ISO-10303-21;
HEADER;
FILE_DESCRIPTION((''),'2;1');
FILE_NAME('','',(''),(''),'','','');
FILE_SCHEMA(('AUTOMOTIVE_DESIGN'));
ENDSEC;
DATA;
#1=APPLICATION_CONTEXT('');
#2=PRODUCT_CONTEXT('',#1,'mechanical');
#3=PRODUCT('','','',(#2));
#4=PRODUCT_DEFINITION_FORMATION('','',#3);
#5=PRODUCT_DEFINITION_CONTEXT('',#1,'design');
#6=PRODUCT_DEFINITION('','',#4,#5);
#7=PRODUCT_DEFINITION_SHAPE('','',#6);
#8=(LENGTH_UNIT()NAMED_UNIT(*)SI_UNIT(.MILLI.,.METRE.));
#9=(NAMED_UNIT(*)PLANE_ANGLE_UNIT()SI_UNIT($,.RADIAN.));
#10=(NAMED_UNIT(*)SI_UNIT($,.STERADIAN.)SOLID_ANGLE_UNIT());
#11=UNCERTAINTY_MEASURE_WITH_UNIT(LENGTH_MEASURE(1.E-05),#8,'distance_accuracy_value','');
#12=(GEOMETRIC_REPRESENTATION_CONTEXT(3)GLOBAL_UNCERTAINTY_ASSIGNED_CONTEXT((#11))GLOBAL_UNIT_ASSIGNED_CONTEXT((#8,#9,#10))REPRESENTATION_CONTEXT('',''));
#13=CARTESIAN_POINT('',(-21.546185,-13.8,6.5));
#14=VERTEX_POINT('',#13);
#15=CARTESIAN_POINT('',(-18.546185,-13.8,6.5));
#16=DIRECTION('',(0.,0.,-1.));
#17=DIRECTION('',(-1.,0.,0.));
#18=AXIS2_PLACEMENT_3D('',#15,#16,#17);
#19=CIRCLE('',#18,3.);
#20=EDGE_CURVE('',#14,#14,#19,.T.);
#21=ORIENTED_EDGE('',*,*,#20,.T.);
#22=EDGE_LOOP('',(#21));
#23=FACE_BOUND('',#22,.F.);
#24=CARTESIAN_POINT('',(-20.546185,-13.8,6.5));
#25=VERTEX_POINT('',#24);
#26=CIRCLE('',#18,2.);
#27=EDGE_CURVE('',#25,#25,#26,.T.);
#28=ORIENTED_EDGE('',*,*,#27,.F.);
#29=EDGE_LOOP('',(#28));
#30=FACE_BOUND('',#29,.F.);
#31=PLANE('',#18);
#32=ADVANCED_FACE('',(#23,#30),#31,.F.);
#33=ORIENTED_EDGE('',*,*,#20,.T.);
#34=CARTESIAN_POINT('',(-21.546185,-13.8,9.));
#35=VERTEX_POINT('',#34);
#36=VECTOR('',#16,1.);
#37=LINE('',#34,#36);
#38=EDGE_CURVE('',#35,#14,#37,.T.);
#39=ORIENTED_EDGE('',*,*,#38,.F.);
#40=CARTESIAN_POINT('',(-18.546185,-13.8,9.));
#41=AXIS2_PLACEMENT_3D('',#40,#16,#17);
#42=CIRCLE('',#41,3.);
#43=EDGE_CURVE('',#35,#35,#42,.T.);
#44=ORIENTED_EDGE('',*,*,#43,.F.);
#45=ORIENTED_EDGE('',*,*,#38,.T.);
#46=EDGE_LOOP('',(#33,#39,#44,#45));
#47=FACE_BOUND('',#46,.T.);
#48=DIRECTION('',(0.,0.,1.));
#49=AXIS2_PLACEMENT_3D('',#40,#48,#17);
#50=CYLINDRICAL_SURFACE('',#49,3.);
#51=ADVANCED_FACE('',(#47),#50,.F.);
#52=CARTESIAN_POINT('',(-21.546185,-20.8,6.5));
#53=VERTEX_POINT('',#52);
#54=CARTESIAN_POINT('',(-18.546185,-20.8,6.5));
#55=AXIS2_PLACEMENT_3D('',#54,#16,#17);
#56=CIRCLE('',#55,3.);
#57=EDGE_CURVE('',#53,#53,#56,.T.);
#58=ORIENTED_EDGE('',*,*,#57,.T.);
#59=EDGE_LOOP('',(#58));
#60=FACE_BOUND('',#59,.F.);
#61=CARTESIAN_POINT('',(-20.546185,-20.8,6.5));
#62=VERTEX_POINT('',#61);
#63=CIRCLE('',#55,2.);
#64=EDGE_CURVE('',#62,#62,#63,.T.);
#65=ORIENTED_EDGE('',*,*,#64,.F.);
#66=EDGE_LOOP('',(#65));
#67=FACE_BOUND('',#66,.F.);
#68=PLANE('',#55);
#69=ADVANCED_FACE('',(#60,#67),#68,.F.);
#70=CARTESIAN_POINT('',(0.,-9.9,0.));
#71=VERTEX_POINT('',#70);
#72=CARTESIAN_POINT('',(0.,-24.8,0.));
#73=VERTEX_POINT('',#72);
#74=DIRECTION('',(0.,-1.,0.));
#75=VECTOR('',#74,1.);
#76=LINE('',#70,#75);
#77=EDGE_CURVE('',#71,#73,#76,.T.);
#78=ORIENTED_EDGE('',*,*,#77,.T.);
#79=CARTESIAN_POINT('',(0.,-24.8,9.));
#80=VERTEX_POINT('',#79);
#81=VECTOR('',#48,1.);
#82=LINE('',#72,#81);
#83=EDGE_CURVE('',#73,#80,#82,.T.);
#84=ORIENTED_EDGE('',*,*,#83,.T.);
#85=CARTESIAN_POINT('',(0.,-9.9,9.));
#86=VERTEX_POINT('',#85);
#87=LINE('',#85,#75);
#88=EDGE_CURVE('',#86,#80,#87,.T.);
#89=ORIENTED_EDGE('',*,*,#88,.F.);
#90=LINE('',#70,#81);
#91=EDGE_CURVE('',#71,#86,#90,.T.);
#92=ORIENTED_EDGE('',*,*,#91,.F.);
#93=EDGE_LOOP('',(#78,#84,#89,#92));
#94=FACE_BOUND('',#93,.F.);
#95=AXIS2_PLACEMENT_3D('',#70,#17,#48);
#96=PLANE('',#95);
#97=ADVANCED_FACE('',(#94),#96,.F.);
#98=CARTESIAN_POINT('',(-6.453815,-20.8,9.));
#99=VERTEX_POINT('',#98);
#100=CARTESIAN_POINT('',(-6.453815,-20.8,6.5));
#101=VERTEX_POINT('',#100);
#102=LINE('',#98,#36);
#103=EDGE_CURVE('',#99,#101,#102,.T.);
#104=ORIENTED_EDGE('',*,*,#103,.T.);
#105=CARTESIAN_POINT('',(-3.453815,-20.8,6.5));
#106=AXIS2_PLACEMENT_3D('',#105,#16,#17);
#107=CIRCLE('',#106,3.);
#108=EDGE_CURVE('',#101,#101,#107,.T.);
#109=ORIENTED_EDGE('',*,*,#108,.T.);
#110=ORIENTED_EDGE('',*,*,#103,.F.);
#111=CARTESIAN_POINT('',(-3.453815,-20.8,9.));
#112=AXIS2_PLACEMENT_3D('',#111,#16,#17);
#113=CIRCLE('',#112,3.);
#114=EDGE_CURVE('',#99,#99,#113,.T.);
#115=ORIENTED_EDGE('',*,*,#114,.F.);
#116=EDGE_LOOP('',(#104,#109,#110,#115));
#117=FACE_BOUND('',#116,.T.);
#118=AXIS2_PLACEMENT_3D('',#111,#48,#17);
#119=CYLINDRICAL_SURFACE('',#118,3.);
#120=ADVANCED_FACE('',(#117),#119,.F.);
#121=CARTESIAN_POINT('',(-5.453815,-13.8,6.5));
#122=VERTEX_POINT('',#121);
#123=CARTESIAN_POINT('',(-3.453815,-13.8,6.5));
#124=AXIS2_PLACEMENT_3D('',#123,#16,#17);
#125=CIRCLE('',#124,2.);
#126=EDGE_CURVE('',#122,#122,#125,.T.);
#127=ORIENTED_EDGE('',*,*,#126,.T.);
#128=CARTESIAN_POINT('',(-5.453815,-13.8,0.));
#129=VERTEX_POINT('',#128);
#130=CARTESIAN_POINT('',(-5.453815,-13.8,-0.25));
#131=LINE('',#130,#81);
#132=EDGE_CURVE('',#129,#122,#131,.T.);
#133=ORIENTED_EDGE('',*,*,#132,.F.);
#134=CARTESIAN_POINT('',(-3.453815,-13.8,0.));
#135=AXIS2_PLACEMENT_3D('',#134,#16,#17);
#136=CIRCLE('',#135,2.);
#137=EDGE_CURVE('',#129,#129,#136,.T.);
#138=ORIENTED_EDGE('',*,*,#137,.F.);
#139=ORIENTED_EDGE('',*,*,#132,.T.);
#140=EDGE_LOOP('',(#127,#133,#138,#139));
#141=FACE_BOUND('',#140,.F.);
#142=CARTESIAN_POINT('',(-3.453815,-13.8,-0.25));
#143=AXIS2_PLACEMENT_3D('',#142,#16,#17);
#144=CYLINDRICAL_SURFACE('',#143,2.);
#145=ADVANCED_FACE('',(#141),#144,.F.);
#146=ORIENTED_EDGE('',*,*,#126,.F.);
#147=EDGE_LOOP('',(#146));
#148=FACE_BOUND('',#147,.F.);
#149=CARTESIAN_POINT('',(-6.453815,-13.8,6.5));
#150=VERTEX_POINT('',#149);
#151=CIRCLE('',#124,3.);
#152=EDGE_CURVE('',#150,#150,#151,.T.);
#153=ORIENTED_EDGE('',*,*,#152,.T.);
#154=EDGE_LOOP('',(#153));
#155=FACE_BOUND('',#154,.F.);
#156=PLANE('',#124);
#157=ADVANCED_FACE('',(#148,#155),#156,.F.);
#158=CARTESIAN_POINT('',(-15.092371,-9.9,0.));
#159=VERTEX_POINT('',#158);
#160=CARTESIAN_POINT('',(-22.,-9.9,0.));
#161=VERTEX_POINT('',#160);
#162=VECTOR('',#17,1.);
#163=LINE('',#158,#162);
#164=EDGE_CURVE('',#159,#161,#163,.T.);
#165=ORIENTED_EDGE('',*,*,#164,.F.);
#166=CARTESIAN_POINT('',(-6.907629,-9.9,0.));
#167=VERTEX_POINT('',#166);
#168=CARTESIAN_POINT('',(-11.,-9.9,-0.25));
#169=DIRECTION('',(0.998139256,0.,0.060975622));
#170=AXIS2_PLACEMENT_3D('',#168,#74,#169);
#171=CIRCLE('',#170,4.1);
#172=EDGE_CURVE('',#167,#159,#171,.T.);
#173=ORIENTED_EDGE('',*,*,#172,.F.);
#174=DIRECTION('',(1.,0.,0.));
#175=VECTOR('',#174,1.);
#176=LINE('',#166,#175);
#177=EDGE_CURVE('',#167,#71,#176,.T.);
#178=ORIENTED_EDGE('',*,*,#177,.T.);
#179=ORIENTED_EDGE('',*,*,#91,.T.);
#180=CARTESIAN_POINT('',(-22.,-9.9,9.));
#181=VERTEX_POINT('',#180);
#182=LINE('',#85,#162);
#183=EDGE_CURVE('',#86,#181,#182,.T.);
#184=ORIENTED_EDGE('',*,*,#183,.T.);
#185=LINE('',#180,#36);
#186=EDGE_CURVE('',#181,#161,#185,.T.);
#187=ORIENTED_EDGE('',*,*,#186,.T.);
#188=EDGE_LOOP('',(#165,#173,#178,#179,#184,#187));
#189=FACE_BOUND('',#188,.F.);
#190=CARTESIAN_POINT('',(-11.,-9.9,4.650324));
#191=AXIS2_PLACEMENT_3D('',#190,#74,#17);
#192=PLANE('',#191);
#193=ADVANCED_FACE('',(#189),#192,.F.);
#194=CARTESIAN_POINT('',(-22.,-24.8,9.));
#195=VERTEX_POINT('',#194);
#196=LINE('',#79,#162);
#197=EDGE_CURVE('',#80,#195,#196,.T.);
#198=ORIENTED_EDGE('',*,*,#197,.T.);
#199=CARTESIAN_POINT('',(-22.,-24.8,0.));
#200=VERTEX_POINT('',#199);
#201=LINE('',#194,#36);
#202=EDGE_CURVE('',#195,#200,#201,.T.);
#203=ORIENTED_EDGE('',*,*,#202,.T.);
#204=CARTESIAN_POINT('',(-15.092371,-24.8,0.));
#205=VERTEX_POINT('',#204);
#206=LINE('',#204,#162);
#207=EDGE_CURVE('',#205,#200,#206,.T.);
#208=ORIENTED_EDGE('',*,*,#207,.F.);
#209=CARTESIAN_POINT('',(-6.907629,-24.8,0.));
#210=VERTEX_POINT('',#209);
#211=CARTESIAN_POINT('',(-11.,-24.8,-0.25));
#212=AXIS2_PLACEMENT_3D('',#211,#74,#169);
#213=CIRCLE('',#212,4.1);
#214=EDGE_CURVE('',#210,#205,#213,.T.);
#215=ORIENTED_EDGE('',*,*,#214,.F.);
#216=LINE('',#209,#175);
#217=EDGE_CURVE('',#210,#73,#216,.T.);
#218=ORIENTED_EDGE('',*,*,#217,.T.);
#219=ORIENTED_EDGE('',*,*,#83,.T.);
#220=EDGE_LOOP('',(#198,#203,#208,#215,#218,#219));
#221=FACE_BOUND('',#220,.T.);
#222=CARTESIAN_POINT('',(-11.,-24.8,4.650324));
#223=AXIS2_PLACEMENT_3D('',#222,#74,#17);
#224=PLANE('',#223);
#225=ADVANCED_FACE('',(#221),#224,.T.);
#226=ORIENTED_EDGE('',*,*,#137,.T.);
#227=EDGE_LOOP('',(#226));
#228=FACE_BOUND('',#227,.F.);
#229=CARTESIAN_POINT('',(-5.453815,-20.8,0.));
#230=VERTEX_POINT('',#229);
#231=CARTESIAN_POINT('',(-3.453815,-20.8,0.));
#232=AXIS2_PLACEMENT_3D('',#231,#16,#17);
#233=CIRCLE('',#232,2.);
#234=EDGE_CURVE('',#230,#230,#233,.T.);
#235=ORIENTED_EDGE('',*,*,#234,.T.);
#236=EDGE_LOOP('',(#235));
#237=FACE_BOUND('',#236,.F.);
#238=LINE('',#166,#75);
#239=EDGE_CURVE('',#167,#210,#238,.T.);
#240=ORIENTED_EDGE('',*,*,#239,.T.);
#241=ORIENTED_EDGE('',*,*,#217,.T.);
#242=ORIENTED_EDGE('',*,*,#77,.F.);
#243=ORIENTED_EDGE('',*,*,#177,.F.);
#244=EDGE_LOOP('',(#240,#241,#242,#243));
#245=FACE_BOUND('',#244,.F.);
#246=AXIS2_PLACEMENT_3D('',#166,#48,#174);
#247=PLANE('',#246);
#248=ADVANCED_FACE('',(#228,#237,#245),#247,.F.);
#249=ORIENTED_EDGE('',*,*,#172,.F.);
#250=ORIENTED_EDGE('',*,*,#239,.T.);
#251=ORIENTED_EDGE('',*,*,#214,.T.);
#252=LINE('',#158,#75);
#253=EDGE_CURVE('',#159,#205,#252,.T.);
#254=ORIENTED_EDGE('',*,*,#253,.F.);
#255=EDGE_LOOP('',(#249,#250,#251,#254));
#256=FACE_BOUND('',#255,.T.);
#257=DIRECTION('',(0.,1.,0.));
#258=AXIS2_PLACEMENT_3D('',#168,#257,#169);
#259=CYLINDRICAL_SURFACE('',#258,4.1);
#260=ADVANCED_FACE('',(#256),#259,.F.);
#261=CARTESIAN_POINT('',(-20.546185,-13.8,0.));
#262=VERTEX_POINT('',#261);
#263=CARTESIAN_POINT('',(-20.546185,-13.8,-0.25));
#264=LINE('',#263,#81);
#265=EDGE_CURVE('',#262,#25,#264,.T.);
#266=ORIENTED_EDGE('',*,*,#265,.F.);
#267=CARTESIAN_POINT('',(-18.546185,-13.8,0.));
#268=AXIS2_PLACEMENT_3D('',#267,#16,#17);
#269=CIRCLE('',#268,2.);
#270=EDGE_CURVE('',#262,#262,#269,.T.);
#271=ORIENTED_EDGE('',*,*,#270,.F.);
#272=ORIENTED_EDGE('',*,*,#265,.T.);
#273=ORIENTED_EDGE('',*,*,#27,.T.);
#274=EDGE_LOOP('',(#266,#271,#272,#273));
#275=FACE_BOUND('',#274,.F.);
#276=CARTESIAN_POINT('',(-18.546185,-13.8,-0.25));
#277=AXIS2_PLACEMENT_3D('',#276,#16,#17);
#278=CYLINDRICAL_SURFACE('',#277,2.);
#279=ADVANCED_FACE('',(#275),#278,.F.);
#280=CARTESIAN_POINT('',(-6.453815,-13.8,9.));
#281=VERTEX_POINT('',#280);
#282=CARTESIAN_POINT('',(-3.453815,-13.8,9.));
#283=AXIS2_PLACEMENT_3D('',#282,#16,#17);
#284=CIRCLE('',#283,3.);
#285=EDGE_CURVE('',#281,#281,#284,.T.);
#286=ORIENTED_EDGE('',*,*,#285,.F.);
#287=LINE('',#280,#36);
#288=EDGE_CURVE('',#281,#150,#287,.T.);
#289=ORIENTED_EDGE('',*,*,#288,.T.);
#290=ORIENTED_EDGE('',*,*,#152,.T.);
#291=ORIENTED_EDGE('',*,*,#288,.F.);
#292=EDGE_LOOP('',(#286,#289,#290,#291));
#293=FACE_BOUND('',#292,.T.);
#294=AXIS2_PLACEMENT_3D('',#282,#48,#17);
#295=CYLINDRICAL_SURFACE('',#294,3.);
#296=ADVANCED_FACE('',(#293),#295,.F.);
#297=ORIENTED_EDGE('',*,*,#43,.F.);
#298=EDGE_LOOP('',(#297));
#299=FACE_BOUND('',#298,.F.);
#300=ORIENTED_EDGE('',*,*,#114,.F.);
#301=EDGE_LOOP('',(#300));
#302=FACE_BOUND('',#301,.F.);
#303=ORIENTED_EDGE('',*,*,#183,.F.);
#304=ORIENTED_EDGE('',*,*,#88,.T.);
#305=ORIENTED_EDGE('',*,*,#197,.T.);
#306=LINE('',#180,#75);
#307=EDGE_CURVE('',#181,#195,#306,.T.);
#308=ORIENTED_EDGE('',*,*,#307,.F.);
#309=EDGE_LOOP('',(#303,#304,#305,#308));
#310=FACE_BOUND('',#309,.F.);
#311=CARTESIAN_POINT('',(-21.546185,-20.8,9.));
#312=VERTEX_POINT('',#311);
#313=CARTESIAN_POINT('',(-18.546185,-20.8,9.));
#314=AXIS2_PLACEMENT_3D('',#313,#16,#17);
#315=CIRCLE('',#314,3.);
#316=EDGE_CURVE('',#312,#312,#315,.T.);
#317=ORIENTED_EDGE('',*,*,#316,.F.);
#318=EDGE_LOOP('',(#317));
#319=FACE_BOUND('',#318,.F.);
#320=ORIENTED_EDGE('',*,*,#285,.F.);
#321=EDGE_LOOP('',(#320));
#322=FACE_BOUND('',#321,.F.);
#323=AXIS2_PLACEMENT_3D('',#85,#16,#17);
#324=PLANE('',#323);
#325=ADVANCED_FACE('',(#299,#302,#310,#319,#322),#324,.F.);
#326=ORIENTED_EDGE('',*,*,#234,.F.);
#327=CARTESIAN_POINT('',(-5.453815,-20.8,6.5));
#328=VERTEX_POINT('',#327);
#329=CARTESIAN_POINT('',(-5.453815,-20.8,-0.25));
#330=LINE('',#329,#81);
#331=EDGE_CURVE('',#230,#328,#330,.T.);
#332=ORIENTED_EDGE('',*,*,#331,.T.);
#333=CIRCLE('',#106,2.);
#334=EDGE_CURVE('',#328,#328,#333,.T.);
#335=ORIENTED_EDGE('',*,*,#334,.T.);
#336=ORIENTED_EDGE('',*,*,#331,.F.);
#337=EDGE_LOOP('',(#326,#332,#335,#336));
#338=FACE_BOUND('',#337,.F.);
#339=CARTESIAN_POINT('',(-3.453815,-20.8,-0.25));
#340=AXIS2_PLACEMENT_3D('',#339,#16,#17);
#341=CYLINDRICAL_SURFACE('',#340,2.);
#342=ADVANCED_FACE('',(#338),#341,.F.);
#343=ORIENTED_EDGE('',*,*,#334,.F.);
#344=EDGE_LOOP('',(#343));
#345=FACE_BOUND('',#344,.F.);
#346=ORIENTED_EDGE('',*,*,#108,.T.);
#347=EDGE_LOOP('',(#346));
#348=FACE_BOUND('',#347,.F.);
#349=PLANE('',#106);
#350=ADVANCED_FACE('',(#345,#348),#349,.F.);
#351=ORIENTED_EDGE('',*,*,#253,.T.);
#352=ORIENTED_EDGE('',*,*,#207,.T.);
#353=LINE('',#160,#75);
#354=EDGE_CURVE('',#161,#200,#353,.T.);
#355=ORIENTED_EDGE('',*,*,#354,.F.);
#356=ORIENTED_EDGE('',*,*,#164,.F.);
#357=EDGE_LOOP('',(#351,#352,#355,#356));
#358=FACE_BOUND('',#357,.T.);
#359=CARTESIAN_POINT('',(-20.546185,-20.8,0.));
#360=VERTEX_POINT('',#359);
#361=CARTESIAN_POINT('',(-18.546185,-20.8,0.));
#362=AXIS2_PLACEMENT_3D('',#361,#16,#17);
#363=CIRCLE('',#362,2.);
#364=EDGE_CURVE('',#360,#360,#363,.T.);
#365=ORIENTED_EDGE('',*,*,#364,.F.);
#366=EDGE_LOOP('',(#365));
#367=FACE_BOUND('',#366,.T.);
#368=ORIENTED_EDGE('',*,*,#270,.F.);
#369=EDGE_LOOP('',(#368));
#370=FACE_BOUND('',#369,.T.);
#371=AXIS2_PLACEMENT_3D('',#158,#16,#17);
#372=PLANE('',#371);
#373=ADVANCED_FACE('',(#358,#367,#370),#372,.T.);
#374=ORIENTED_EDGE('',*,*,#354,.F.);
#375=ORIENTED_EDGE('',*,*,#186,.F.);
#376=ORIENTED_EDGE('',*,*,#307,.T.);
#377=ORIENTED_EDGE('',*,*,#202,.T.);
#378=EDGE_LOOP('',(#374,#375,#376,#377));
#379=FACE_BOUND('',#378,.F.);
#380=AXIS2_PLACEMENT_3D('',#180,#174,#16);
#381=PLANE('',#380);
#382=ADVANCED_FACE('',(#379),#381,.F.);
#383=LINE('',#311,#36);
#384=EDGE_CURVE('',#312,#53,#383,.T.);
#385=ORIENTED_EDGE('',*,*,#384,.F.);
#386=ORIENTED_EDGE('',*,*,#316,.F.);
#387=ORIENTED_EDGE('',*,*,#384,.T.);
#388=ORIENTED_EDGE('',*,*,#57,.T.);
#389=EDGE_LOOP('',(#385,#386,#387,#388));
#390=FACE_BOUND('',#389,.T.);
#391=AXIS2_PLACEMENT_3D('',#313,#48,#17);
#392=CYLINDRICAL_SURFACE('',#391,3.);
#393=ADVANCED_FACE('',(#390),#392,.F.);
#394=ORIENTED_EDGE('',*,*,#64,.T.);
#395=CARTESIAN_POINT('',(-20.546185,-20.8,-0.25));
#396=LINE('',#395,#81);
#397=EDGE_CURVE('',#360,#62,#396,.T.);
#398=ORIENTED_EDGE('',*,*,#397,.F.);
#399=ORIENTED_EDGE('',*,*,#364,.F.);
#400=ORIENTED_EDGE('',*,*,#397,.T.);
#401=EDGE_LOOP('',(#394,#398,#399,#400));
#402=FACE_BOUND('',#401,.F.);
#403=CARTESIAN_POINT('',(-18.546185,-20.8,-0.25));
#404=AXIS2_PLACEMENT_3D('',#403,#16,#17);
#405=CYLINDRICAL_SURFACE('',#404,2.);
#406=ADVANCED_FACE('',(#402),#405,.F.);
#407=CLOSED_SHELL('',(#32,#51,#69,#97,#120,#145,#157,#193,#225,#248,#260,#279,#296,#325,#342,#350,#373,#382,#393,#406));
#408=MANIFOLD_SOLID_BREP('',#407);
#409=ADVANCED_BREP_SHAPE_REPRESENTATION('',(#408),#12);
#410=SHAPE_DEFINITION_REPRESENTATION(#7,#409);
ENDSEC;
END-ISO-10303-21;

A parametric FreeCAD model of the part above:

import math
import FreeCAD as App
import Part
import Sketcher
from FreeCAD import Vector

doc = App.newDocument("Part")
body = doc.addObject("PartDesign::Body", "Body")

sketch1 = body.newObject("Sketcher::SketchObject", "Sketch")
sketch1.AttachmentSupport = (doc.getObject("XZ_Plane"), [""])
sketch1.MapMode = "FlatFace"
sketch1.AttachmentOffset = App.Placement(Vector(0, 0, 9.9), App.Rotation())
sketch1.addGeometry(Part.LineSegment(Vector(-22, -0.2, 0), Vector(-22, -9.2, 0)), False)
sketch1.addGeometry(Part.LineSegment(Vector(-22, -9.2, 0), Vector(0, -9.2, 0)), False)
sketch1.addGeometry(Part.LineSegment(Vector(0, -9.2, 0), Vector(0, -0.2, 0)), False)
sketch1.addGeometry(Part.LineSegment(Vector(0, -0.2, 0), Vector(-6.9, -0.2, 0)), False)
sketch1.addGeometry(Part.ArcOfCircle(Part.Circle(Vector(-11, 0, 0), Vector(0, 0, 1), 4.1), math.radians(-177), math.radians(-3)), False)
sketch1.addGeometry(Part.LineSegment(Vector(-15.1, -0.2, 0), Vector(-22, -0.2, 0)), False)
sketch1.addConstraint(Sketcher.Constraint("Coincident", 0, 2, 1, 1))
sketch1.addConstraint(Sketcher.Constraint("Coincident", 1, 2, 2, 1))
sketch1.addConstraint(Sketcher.Constraint("Coincident", 2, 2, 3, 1))
sketch1.addConstraint(Sketcher.Constraint("Coincident", 3, 2, 4, 2))
sketch1.addConstraint(Sketcher.Constraint("Coincident", 4, 1, 5, 1))
sketch1.addConstraint(Sketcher.Constraint("Coincident", 5, 2, 0, 1))
sketch1.addConstraint(Sketcher.Constraint("Vertical", 0))
sketch1.addConstraint(Sketcher.Constraint("Horizontal", 1))
sketch1.addConstraint(Sketcher.Constraint("Vertical", 2))
sketch1.addConstraint(Sketcher.Constraint("Horizontal", 3))
sketch1.addConstraint(Sketcher.Constraint("Horizontal", 5))
sketch1.addConstraint(Sketcher.Constraint("PointOnObject", 4, 3, -1))
sketch1.addConstraint(Sketcher.Constraint("PointOnObject", 1, 2, -2))
sketch1.addConstraint(Sketcher.Constraint("Horizontal", 3, 2, 4, 1))
sketch1.addConstraint(Sketcher.Constraint("Equal", 3, 5))
sketch1.addConstraint(Sketcher.Constraint("Radius", 4, 4.1))
sketch1.addConstraint(Sketcher.Constraint("DistanceX", 1, 1, 1, 2, 22.0))
sketch1.addConstraint(Sketcher.Constraint("DistanceY", 0, 2, 0, 1, 9.0))
sketch1.addConstraint(Sketcher.Constraint("DistanceY", 0, 2, -1, 1, 9.25))
pad1 = body.newObject("PartDesign::Pad", "Pad")
pad1.Profile = sketch1
pad1.Length = 14.9

sketch2 = body.newObject("Sketcher::SketchObject", "Sketch001")
sketch2.AttachmentSupport = (doc.getObject("XY_Plane"), [""])
sketch2.MapMode = "FlatFace"
sketch2.addGeometry(Part.Circle(Vector(-18.5, -13.8, 0), Vector(0, 0, 1), 2), False)
sketch2.addGeometry(Part.Circle(Vector(-18.5, -20.8, 0), Vector(0, 0, 1), 2), False)
sketch2.addGeometry(Part.Circle(Vector(-3.5, -20.8, 0), Vector(0, 0, 1), 2), False)
sketch2.addGeometry(Part.Circle(Vector(-3.5, -13.8, 0), Vector(0, 0, 1), 2), False)
sketch2.addConstraint(Sketcher.Constraint("Equal", 0, 1))
sketch2.addConstraint(Sketcher.Constraint("Equal", 1, 2))
sketch2.addConstraint(Sketcher.Constraint("Equal", 2, 3))
sketch2.addConstraint(Sketcher.Constraint("Horizontal", 1, 3, 2, 3))
sketch2.addConstraint(Sketcher.Constraint("Horizontal", 0, 3, 3, 3))
sketch2.addConstraint(Sketcher.Constraint("Vertical", 0, 3, 1, 3))
sketch2.addConstraint(Sketcher.Constraint("Vertical", 2, 3, 3, 3))
sketch2.addConstraint(Sketcher.Constraint("Diameter", 0, 4.0))
sketch2.addConstraint(Sketcher.Constraint("DistanceY", 1, 3, 0, 3, 7.0))
sketch2.addConstraint(Sketcher.Constraint("DistanceY", 0, 3, -1, 1, 13.8))
sketch2.addConstraint(Sketcher.Constraint("DistanceX", 1, 3, 2, 3, 15.09237))
sketch2.addConstraint(Sketcher.Constraint("DistanceX", 0, 3, -1, 1, 18.546185))
pocket1 = body.newObject("PartDesign::Pocket", "Pocket")
pocket1.Profile = sketch2
pocket1.Type = "ThroughAll"

sketch3 = body.newObject("Sketcher::SketchObject", "Sketch002")
sketch3.AttachmentSupport = (doc.getObject("XY_Plane"), [""])
sketch3.MapMode = "FlatFace"
sketch3.AttachmentOffset = App.Placement(Vector(0, 0, -9.25), App.Rotation())
sketch3.addGeometry(Part.Circle(Vector(-18.5, -13.8, 0), Vector(0, 0, 1), 3), False)
sketch3.addGeometry(Part.Circle(Vector(-18.5, -20.8, 0), Vector(0, 0, 1), 3), False)
sketch3.addGeometry(Part.Circle(Vector(-3.5, -13.8, 0), Vector(0, 0, 1), 3), False)
sketch3.addGeometry(Part.Circle(Vector(-3.5, -20.8, 0), Vector(0, 0, 1), 3), False)
sketch3.addConstraint(Sketcher.Constraint("Equal", 0, 1))
sketch3.addConstraint(Sketcher.Constraint("Equal", 1, 2))
sketch3.addConstraint(Sketcher.Constraint("Equal", 2, 3))
sketch3.addConstraint(Sketcher.Constraint("Horizontal", 0, 3, 2, 3))
sketch3.addConstraint(Sketcher.Constraint("Horizontal", 1, 3, 3, 3))
sketch3.addConstraint(Sketcher.Constraint("Vertical", 0, 3, 1, 3))
sketch3.addConstraint(Sketcher.Constraint("Vertical", 2, 3, 3, 3))
sketch3.addConstraint(Sketcher.Constraint("Diameter", 0, 6.0))
sketch3.addConstraint(Sketcher.Constraint("DistanceY", 1, 3, 0, 3, 7.0))
sketch3.addConstraint(Sketcher.Constraint("DistanceY", 0, 3, -1, 1, 13.8))
sketch3.addConstraint(Sketcher.Constraint("DistanceX", 0, 3, 2, 3, 15.09237))
sketch3.addConstraint(Sketcher.Constraint("DistanceX", 0, 3, -1, 1, 18.546185))
pocket2 = body.newObject("PartDesign::Pocket", "Pocket001")
pocket2.Profile = sketch3
pocket2.Length = 2.5
pocket2.Reversed = True
body2 = doc.addObject("PartDesign::Body", "Body001")
doc.recompute()

body.Placement = App.Placement(Vector(-22, 0, -0.25), App.Rotation(Vector(0, 1, 0), 180))
boolean = body2.newObject("PartDesign::Boolean", "Boolean")
boolean.Type = "Fuse"
boolean.addObjects([body])

doc.recompute()
